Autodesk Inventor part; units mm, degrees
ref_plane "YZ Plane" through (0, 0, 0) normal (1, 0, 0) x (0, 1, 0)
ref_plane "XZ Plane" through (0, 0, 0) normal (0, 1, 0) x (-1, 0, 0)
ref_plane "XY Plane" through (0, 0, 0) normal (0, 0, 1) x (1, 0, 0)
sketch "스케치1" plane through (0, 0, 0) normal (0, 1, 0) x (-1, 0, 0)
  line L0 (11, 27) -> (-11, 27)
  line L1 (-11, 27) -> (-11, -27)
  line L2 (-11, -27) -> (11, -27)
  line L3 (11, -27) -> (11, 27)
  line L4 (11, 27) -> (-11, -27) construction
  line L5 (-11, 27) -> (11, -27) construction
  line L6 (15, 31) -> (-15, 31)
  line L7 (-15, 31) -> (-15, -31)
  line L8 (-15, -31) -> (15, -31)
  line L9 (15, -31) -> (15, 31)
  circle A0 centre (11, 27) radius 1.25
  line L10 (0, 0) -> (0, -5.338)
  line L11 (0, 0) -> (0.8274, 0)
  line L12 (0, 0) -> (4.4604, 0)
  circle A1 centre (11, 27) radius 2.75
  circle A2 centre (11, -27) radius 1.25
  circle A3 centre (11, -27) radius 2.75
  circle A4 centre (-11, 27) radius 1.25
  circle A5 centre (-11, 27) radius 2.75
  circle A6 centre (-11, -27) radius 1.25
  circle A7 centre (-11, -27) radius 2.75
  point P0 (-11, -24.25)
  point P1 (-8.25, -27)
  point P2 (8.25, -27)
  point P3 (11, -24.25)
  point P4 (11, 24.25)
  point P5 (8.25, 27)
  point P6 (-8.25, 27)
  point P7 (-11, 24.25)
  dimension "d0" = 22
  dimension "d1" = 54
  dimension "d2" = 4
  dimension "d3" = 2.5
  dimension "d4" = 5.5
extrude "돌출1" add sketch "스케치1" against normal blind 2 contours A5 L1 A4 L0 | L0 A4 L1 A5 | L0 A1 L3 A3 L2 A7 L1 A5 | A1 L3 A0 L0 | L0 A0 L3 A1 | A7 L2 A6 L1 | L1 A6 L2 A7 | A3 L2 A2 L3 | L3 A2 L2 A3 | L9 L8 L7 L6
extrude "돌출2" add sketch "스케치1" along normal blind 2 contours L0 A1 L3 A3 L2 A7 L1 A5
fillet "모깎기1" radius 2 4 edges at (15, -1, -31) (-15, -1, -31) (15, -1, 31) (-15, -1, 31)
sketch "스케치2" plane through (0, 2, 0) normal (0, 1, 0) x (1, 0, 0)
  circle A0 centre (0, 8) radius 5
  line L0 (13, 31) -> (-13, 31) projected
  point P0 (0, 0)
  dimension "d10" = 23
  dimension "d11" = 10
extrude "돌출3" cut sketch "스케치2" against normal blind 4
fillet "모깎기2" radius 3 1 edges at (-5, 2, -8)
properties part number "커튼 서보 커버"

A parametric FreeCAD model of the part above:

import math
import FreeCAD as App
import Part
import Sketcher
Q = App.Units.Quantity


def edges_at(feature, points):
    """Names of the edges that pass closest to the given points."""
    edges = feature.Shape.Edges
    near = lambda p: min(range(len(edges)), key=lambda i: edges[i].distToShape(Part.Vertex(*p))[0])
    return sorted({f"Edge{near(p) + 1}" for p in points})


def add_polygon(sketch, points):
    """Adds a closed chain of lines whose ends are joined by coincident constraints."""
    first, n = sketch.GeometryCount, len(points)
    for a, b in zip(points, points[1:] + points[:1]):
        sketch.addGeometry(Part.LineSegment(App.Vector(*a, 0), App.Vector(*b, 0)), False)
    for i in range(n):
        sketch.addConstraint(Sketcher.Constraint("Coincident", first + i, 2, first + (i + 1) % n, 1))

doc = App.newDocument("Part")
body = doc.addObject("PartDesign::Body", "Body")

sketch1 = body.newObject("Sketcher::SketchObject", "Sketch")
sketch1.AttachmentSupport = (doc.getObject("XZ_Plane"), [""])
sketch1.MapMode = "FlatFace"
add_polygon(sketch1, [(-15, -31), (-15, 31), (15, 31), (15, -31)])
sketch1.addGeometry(Part.Circle(App.Vector(11, 27, 0), App.Vector(0, 0, 1), 1.2), False)
sketch1.addGeometry(Part.Circle(App.Vector(-11, 27, 0), App.Vector(0, 0, 1), 1.2), False)
sketch1.addGeometry(Part.Circle(App.Vector(-11, -27, 0), App.Vector(0, 0, 1), 1.2), False)
sketch1.addGeometry(Part.Circle(App.Vector(11, -27, 0), App.Vector(0, 0, 1), 1.2), False)
sketch1.addConstraint(Sketcher.Constraint("Vertical", 0))
sketch1.addConstraint(Sketcher.Constraint("Horizontal", 1))
sketch1.addConstraint(Sketcher.Constraint("Vertical", 2))
sketch1.addConstraint(Sketcher.Constraint("Horizontal", 3))
sketch1.addConstraint(Sketcher.Constraint("Equal", 4, 5))
sketch1.addConstraint(Sketcher.Constraint("Equal", 5, 6))
sketch1.addConstraint(Sketcher.Constraint("Equal", 6, 7))
sketch1.addConstraint(Sketcher.Constraint("Symmetric", 4, 3, 6, 3, -1, 1))
sketch1.addConstraint(Sketcher.Constraint("Symmetric", 5, 3, 7, 3, -1, 1))
sketch1.addConstraint(Sketcher.Constraint("Symmetric", 0, 2, 2, 2, -1, 1))
sketch1.addConstraint(Sketcher.Constraint("Symmetric", 4, 3, 5, 3, -2))
sketch1.addConstraint(Sketcher.Constraint("Diameter", 4, Q("2.5 mm")))
sketch1.addConstraint(Sketcher.Constraint("DistanceX", 5, 3, 4, 3, Q("22 mm")))
sketch1.addConstraint(Sketcher.Constraint("DistanceY", 6, 3, 5, 3, Q("54 mm")))
sketch1.addConstraint(Sketcher.Constraint("DistanceX", 0, 2, 5, 3, Q("4 mm")))
sketch1.addConstraint(Sketcher.Constraint("DistanceY", 5, 3, 0, 2, Q("4 mm")))
pad1 = body.newObject("PartDesign::Pad", "Pad")
pad1.Profile = sketch1
pad1.Length = 2

sketch2 = body.newObject("Sketcher::SketchObject", "Sketch001")
sketch2.AttachmentSupport = (doc.getObject("XZ_Plane"), [""])
sketch2.MapMode = "FlatFace"
sketch2.addGeometry(Part.LineSegment(App.Vector(-8.2, 27, 0), App.Vector(8.2, 27, 0)), False)
sketch2.addGeometry(Part.ArcOfCircle(Part.Circle(App.Vector(11, 27, 0), App.Vector(0, 0, 1), 2.8), math.radians(180), math.radians(270)), False)
sketch2.addGeometry(Part.LineSegment(App.Vector(11, 24.2, 0), App.Vector(11, -24.2, 0)), False)
sketch2.addGeometry(Part.ArcOfCircle(Part.Circle(App.Vector(11, -27, 0), App.Vector(0, 0, 1), 2.8), math.radians(90), math.radians(180)), False)
sketch2.addGeometry(Part.LineSegment(App.Vector(8.2, -27, 0), App.Vector(-8.2, -27, 0)), False)
sketch2.addGeometry(Part.ArcOfCircle(Part.Circle(App.Vector(-11, -27, 0), App.Vector(0, 0, 1), 2.8), math.radians(0), math.radians(90)), False)
sketch2.addGeometry(Part.LineSegment(App.Vector(-11, -24.2, 0), App.Vector(-11, 24.2, 0)), False)
sketch2.addGeometry(Part.ArcOfCircle(Part.Circle(App.Vector(-11, 27, 0), App.Vector(0, 0, 1), 2.8), math.radians(-90), math.radians(0)), False)
sketch2.addConstraint(Sketcher.Constraint("Coincident", 0, 2, 1, 1))
sketch2.addConstraint(Sketcher.Constraint("Coincident", 1, 2, 2, 1))
sketch2.addConstraint(Sketcher.Constraint("Coincident", 2, 2, 3, 1))
sketch2.addConstraint(Sketcher.Constraint("Coincident", 3, 2, 4, 1))
sketch2.addConstraint(Sketcher.Constraint("Coincident", 4, 2, 5, 1))
sketch2.addConstraint(Sketcher.Constraint("Coincident", 5, 2, 6, 1))
sketch2.addConstraint(Sketcher.Constraint("Coincident", 6, 2, 7, 1))
sketch2.addConstraint(Sketcher.Constraint("Coincident", 7, 2, 0, 1))
sketch2.addConstraint(Sketcher.Constraint("Horizontal", 0))
sketch2.addConstraint(Sketcher.Constraint("Vertical", 2))
sketch2.addConstraint(Sketcher.Constraint("Horizontal", 4))
sketch2.addConstraint(Sketcher.Constraint("Vertical", 6))
sketch2.addConstraint(Sketcher.Constraint("Equal", 1, 3))
sketch2.addConstraint(Sketcher.Constraint("Equal", 3, 5))
sketch2.addConstraint(Sketcher.Constraint("Equal", 5, 7))
sketch2.addConstraint(Sketcher.Constraint("Symmetric", 1, 3, 5, 3, -1, 1))
sketch2.addConstraint(Sketcher.Constraint("Symmetric", 3, 3, 7, 3, -1, 1))
sketch2.addConstraint(Sketcher.Constraint("Symmetric", 3, 3, 5, 3, -2))
sketch2.addConstraint(Sketcher.Constraint("Horizontal", 7, 3, 0, 2))
sketch2.addConstraint(Sketcher.Constraint("Horizontal", 5, 3, 3, 2))
sketch2.addConstraint(Sketcher.Constraint("Vertical", 3, 3, 1, 2))
sketch2.addConstraint(Sketcher.Constraint("Vertical", 7, 3, 5, 2))
sketch2.addConstraint(Sketcher.Constraint("Radius", 1, Q("2.75 mm")))
sketch2.addConstraint(Sketcher.Constraint("DistanceY", 3, 3, 1, 3, Q("54 mm")))
sketch2.addConstraint(Sketcher.Constraint("DistanceX", 5, 3, 3, 3, Q("22 mm")))
pad2 = body.newObject("PartDesign::Pad", "Pad001")
pad2.Profile = sketch2
pad2.Length = 2
pad2.Reversed = True
doc.recompute()

fillet = body.newObject("PartDesign::Fillet", "Fillet")
fillet.Base = (pad2, edges_at(pad2, [
    (15, -1, -31),
    (-15, -1, -31),
    (15, -1, 31),
    (-15, -1, 31),
]))
fillet.Radius = 2

sketch3 = body.newObject("Sketcher::SketchObject", "Sketch002")
sketch3.AttachmentSupport = (doc.getObject("XZ_Plane"), [""])
sketch3.MapMode = "FlatFace"
sketch3.AttachmentOffset = App.Placement(App.Vector(0, 0, -2), App.Rotation())
sketch3.addGeometry(Part.Circle(App.Vector(0, -8, 0), App.Vector(0, 0, 1), 5), False)
sketch3.addConstraint(Sketcher.Constraint("PointOnObject", 0, 3, -2))
sketch3.addConstraint(Sketcher.Constraint("Diameter", 0, Q("10 mm")))
sketch3.addConstraint(Sketcher.Constraint("DistanceY", 0, 3, -1, 1, Q("8 mm")))
pocket1 = body.newObject("PartDesign::Pocket", "Pocket")
pocket1.Profile = sketch3
pocket1.Length = 4
pocket1.Reversed = True
doc.recompute()

fillet2 = body.newObject("PartDesign::Fillet", "Fillet001")
fillet2.Base = (pocket1, edges_at(pocket1, [(-5, 2, -8)]))
fillet2.Radius = 3

doc.recompute()
